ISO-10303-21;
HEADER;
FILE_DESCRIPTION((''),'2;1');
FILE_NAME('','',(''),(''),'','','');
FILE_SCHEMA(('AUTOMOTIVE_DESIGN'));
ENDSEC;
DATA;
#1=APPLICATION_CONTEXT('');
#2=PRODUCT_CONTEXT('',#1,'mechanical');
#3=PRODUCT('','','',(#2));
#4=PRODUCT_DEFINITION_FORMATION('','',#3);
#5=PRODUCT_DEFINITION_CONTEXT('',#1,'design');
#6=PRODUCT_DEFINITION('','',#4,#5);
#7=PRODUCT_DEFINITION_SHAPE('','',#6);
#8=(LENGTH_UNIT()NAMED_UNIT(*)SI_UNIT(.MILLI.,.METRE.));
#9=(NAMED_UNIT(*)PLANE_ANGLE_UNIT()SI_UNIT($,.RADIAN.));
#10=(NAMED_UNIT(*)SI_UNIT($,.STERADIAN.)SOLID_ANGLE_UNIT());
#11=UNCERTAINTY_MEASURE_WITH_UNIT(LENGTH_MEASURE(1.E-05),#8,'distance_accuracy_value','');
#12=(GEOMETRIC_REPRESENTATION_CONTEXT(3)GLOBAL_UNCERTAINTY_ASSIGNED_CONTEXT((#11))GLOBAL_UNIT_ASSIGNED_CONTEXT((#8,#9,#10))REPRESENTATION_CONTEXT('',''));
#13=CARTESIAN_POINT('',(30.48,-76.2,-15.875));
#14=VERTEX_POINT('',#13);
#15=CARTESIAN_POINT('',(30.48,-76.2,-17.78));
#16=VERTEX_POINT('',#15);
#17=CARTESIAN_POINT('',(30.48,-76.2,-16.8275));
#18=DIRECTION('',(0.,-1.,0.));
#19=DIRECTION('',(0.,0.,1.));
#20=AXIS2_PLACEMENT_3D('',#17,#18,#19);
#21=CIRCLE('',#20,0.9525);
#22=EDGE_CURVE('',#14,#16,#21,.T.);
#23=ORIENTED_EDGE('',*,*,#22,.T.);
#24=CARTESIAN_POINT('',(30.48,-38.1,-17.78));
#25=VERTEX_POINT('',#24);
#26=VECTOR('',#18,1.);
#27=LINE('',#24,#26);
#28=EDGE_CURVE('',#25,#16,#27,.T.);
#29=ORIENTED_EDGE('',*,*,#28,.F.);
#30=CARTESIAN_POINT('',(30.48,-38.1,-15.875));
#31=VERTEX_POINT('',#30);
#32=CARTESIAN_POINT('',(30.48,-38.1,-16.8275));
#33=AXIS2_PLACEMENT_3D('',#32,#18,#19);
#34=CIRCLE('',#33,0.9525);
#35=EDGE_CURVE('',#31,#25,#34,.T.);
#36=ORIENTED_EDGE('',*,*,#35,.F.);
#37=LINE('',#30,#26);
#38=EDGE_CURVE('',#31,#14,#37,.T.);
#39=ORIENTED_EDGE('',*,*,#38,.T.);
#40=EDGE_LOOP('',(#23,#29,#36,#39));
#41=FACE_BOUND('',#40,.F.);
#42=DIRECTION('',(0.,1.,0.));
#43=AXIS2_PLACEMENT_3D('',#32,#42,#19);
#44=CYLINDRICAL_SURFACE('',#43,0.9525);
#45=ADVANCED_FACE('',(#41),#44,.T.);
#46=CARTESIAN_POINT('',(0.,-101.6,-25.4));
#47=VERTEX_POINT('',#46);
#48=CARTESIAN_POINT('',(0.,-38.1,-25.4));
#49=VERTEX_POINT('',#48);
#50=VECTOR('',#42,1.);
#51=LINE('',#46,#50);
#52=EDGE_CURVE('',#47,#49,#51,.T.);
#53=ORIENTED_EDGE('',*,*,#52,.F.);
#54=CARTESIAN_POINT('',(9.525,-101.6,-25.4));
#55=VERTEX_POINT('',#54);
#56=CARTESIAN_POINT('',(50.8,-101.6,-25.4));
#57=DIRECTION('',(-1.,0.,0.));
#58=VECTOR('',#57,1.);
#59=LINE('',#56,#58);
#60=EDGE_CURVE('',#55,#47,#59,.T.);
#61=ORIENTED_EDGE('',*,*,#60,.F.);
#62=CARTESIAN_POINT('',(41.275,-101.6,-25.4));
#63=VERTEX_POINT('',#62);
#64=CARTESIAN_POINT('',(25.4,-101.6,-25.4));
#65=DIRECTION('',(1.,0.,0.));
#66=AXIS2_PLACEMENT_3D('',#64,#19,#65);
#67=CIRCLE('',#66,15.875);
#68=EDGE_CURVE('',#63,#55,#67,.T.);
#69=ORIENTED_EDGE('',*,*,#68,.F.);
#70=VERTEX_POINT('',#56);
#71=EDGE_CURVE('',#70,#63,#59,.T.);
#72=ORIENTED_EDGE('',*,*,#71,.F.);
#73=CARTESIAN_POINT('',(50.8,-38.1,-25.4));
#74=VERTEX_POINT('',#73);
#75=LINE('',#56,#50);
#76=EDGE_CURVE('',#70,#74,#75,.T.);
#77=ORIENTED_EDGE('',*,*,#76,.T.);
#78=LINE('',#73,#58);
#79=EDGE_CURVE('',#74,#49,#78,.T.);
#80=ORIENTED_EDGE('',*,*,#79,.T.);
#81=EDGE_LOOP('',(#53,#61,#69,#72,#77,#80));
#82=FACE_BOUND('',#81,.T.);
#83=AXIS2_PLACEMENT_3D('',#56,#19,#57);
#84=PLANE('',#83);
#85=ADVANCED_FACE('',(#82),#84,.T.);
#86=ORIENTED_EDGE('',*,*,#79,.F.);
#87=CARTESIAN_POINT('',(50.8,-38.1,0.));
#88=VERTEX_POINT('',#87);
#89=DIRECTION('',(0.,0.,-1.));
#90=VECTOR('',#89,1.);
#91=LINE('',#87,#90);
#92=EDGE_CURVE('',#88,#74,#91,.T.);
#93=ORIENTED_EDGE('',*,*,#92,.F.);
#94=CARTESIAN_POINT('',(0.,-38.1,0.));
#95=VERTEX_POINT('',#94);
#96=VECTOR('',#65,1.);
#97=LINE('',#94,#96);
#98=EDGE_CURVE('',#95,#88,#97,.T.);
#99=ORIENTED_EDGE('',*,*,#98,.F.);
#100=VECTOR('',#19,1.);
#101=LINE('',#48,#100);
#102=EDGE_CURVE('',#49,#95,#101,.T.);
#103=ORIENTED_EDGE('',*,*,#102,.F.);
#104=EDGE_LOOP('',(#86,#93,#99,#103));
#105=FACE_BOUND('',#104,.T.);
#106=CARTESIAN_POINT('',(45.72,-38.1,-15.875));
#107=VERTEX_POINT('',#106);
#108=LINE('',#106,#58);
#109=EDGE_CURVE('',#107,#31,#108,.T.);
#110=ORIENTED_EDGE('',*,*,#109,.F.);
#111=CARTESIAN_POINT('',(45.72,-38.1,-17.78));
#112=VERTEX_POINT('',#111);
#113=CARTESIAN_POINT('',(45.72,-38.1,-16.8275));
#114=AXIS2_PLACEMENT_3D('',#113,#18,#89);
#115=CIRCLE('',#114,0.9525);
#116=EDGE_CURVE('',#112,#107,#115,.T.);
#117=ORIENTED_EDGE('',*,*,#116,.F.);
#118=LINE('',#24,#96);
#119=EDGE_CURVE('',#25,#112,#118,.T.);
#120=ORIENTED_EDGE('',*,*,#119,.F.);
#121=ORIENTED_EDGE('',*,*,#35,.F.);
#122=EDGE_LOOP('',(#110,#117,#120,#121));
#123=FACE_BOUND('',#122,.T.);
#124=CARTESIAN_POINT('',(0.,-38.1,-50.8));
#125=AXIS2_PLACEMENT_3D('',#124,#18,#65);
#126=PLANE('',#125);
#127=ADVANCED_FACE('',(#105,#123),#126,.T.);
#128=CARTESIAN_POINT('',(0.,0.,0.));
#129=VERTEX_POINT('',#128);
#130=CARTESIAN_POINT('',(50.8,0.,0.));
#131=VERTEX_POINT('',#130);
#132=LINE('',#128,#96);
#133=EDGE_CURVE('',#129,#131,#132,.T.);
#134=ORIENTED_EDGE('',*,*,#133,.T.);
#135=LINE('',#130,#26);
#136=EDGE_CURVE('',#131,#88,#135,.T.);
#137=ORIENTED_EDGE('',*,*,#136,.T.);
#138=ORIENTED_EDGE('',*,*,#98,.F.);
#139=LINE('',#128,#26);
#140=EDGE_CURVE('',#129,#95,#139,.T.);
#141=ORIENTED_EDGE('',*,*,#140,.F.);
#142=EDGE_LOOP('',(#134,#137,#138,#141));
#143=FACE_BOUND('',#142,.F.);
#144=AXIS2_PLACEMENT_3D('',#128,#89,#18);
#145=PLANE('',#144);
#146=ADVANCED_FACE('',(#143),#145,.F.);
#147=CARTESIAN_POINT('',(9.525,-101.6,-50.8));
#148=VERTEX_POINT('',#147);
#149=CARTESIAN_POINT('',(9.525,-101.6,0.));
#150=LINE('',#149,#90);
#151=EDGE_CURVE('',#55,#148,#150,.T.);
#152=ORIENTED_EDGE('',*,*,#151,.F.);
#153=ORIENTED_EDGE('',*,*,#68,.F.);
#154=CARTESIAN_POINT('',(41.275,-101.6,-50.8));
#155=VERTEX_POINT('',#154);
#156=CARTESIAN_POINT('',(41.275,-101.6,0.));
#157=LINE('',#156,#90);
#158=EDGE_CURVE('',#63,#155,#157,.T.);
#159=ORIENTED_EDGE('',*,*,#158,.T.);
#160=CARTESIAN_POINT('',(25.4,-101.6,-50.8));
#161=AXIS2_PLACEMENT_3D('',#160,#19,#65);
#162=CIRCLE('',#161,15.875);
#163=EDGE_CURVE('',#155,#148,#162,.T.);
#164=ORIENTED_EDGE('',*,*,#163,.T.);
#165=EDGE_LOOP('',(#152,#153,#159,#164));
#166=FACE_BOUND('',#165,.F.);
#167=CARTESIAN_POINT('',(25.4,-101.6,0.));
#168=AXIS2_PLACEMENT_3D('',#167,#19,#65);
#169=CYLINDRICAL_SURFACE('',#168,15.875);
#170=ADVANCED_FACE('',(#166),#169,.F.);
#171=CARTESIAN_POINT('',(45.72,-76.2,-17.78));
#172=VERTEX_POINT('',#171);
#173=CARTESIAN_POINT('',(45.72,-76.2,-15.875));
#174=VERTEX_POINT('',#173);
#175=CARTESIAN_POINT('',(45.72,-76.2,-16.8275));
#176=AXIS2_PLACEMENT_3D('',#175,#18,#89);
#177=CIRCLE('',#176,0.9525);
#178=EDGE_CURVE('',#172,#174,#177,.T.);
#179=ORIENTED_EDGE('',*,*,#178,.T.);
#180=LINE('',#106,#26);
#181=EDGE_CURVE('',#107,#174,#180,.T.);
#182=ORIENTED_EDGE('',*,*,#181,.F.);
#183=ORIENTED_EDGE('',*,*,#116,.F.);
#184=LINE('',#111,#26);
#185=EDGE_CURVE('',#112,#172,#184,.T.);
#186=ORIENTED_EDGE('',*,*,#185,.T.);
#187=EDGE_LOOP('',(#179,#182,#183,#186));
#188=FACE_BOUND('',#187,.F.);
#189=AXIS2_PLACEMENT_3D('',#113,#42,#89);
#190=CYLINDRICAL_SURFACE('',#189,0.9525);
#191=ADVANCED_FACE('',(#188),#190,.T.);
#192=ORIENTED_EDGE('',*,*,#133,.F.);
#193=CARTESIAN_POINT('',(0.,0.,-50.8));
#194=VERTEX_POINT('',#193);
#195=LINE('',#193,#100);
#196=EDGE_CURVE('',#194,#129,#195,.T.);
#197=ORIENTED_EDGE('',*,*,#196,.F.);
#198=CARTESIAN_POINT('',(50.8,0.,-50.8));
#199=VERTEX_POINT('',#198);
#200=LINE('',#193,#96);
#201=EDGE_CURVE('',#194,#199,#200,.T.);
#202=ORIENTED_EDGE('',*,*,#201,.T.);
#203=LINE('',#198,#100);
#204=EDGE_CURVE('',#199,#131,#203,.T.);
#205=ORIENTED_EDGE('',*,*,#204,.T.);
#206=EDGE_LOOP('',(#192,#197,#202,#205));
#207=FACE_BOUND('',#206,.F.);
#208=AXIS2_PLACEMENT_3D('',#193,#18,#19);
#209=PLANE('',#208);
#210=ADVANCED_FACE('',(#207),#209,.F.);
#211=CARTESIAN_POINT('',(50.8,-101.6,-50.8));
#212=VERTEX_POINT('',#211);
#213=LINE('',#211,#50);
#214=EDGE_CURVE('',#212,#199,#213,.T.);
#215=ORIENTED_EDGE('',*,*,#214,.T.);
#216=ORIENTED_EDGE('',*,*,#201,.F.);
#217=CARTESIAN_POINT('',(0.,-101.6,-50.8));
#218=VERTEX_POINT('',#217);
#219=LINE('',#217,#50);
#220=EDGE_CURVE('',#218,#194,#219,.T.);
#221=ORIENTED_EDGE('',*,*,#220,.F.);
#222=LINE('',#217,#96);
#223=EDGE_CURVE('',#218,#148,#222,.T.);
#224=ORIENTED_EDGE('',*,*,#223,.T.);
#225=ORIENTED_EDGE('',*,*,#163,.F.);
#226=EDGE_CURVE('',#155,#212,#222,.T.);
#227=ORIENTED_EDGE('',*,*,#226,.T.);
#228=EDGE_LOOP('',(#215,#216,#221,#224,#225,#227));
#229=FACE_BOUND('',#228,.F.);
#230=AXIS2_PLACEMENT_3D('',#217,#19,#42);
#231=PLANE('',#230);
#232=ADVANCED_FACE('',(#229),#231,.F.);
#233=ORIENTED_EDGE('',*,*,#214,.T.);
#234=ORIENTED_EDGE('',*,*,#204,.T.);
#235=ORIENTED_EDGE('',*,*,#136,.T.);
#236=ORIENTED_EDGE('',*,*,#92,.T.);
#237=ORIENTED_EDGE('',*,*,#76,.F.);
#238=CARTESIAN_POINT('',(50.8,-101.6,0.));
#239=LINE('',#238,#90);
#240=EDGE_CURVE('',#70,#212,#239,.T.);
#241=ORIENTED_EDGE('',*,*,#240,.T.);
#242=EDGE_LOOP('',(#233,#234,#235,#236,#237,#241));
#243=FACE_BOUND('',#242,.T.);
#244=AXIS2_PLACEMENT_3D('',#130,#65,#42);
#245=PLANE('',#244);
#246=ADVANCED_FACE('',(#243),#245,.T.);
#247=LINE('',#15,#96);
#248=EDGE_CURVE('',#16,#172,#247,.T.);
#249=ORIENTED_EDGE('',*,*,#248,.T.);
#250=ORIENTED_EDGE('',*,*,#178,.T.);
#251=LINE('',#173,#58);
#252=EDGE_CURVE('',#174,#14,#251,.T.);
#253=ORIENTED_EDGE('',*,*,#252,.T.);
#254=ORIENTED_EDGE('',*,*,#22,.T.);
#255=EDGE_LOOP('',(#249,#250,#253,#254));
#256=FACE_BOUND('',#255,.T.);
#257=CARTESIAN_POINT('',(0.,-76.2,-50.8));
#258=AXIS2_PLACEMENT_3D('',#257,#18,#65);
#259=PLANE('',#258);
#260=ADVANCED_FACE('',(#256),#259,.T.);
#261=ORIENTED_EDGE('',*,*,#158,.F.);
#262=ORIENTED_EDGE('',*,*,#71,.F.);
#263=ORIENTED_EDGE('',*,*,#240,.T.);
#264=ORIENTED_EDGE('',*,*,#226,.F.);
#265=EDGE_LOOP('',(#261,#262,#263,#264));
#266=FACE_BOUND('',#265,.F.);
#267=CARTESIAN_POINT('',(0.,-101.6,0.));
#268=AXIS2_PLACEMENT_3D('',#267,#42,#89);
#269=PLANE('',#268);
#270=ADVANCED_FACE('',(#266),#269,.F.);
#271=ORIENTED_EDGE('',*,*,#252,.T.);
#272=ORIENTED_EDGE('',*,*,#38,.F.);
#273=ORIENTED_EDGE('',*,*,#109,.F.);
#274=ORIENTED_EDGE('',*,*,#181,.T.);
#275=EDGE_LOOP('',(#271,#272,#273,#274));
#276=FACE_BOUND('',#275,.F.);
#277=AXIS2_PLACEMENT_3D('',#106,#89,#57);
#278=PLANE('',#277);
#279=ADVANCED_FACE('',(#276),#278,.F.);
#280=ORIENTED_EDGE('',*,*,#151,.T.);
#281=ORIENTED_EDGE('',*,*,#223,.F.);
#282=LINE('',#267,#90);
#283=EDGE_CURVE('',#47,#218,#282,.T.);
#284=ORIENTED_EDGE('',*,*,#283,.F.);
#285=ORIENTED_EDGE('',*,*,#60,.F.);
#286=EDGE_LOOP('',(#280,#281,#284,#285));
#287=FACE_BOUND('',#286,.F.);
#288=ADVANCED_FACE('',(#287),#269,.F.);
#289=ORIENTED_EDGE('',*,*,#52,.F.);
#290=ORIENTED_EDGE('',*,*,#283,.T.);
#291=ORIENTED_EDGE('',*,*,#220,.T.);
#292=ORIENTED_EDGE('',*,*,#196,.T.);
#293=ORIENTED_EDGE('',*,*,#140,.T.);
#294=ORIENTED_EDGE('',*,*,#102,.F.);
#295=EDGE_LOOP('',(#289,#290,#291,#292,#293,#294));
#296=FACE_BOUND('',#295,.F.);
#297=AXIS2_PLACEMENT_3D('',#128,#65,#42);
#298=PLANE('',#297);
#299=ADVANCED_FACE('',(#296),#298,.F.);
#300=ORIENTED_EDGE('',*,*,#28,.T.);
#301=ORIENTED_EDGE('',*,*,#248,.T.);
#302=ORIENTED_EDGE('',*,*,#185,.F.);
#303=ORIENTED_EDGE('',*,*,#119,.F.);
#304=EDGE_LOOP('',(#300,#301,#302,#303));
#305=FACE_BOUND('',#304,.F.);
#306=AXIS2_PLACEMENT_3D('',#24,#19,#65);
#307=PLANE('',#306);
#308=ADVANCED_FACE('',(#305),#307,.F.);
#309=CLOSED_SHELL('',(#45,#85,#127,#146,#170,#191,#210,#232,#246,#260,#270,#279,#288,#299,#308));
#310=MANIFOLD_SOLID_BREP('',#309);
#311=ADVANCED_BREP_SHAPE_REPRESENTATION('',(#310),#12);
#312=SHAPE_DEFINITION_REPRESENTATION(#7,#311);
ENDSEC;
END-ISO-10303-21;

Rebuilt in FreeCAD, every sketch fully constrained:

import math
import FreeCAD as App
import Part
import Sketcher
Q = App.Units.Quantity

doc = App.newDocument("Part")
body = doc.addObject("PartDesign::Body", "Body")

# Sketch on YZ plane
sketch1 = body.newObject("Sketcher::SketchObject", "Sketch")
sketch1.AttachmentSupport = (doc.getObject("YZ_Plane"), [""])
sketch1.MapMode = "FlatFace"
sketch1.addGeometry([
    Part.LineSegment(App.Vector(0, -51, 0), App.Vector(0, 0, 0)),
    Part.LineSegment(App.Vector(0, 0, 0), App.Vector(-102, 0, 0)),
    Part.LineSegment(App.Vector(-102, 0, 0), App.Vector(-102, -51, 0)),
    Part.LineSegment(App.Vector(-102, -51, 0), App.Vector(0, -51, 0)),
], False)
sketch1.addConstraint([
    Sketcher.Constraint("Coincident", 0, 2, 1, 1),
    Sketcher.Constraint("Coincident", 1, 2, 2, 1),
    Sketcher.Constraint("Coincident", 2, 2, 3, 1),
    Sketcher.Constraint("Coincident", 3, 2, 0, 1),
    Sketcher.Constraint("Vertical", 0),
    Sketcher.Constraint("Horizontal", 1),
    Sketcher.Constraint("Vertical", 2),
    Sketcher.Constraint("Horizontal", 3),
    Sketcher.Constraint("Coincident", 0, 2, -1, 1),
    Sketcher.Constraint("DistanceX", 1, 2, 1, 1, Q("4 in")),
    Sketcher.Constraint("DistanceY", 0, 1, 0, 2, Q("2 in")),
])
pad1 = body.newObject("PartDesign::Pad", "Pad")
pad1.Profile = sketch1
pad1.Length = Q("2 in")

# Sketch on XY plane
sketch2 = body.newObject("Sketcher::SketchObject", "Sketch001")
sketch2.AttachmentSupport = (doc.getObject("XY_Plane"), [""])
sketch2.MapMode = "FlatFace"
sketch2.addGeometry([
    Part.ArcOfCircle(Part.Circle(App.Vector(25, -102, 0), App.Vector(0, 0, 1), 16), math.radians(0), math.radians(180)),
    Part.LineSegment(App.Vector(10, -102, 0), App.Vector(41, -102, 0)),
], False)
sketch2.addConstraint([
    Sketcher.Constraint("Coincident", 0, 1, 1, 2),
    Sketcher.Constraint("Coincident", 1, 1, 0, 2),
    Sketcher.Constraint("Horizontal", 1),
    Sketcher.Constraint("Radius", 0, Q("0.625 in")),
    Sketcher.Constraint("DistanceX", -1, 1, 0, 3, Q("1 in")),
    Sketcher.Constraint("DistanceY", 0, 3, -1, 1, Q("4 in")),
    Sketcher.Constraint("DistanceY", 0, 1, -1, 1, Q("4 in")),
])
pocket1 = body.newObject("PartDesign::Pocket", "Pocket")
pocket1.Profile = sketch2
pocket1.Type = "ThroughAll"

# Sketch on XZ plane
sketch3 = body.newObject("Sketcher::SketchObject", "Sketch002")
sketch3.AttachmentSupport = (doc.getObject("XZ_Plane"), [""])
sketch3.MapMode = "FlatFace"
sketch3.AttachmentOffset = App.Placement(App.Vector(0, 0, 4 * 25.4), App.Rotation())
sketch3.addGeometry([
    Part.LineSegment(App.Vector(51, 0, 0), App.Vector(0, 0, 0)),
    Part.LineSegment(App.Vector(0, 0, 0), App.Vector(0, -25, 0)),
    Part.LineSegment(App.Vector(0, -25, 0), App.Vector(51, -25, 0)),
    Part.LineSegment(App.Vector(51, -25, 0), App.Vector(51, 0, 0)),
], False)
sketch3.addConstraint([
    Sketcher.Constraint("Coincident", 0, 2, 1, 1),
    Sketcher.Constraint("Coincident", 1, 2, 2, 1),
    Sketcher.Constraint("Coincident", 2, 2, 3, 1),
    Sketcher.Constraint("Coincident", 3, 2, 0, 1),
    Sketcher.Constraint("Horizontal", 0),
    Sketcher.Constraint("Vertical", 1),
    Sketcher.Constraint("Horizontal", 2),
    Sketcher.Constraint("Vertical", 3),
    Sketcher.Constraint("Coincident", 0, 2, -1, 1),
    Sketcher.Constraint("DistanceX", 0, 2, 0, 1, Q("2 in")),
    Sketcher.Constraint("DistanceY", 1, 2, 1, 1, Q("1 in")),
])
pocket2 = body.newObject("PartDesign::Pocket", "Pocket001")
pocket2.Profile = sketch3
pocket2.Length = Q("2.5 in")

# Sketch on XZ plane
sketch4 = body.newObject("Sketcher::SketchObject", "Sketch003")
sketch4.AttachmentSupport = (doc.getObject("XZ_Plane"), [""])
sketch4.MapMode = "FlatFace"
sketch4.AttachmentOffset = App.Placement(App.Vector(0, 0, 1.5 * 25.4), App.Rotation())
sketch4.addGeometry([
    Part.ArcOfCircle(Part.Circle(App.Vector(45.7, -16.8, 0), App.Vector(0, 0, 1), 1), math.radians(-90), math.radians(90)),
    Part.LineSegment(App.Vector(45.7, -15.9, 0), App.Vector(30.5, -15.9, 0)),
    Part.ArcOfCircle(Part.Circle(App.Vector(30.5, -16.8, 0), App.Vector(0, 0, 1), 1), math.radians(90), math.radians(270)),
    Part.LineSegment(App.Vector(30.5, -17.8, 0), App.Vector(45.7, -17.8, 0)),
], False)
sketch4.addConstraint([
    Sketcher.Constraint("Tangent", 0, 2, 1, 1),
    Sketcher.Constraint("Tangent", 1, 2, 2, 1),
    Sketcher.Constraint("Tangent", 2, 2, 3, 1),
    Sketcher.Constraint("Tangent", 3, 2, 0, 1),
    Sketcher.Constraint("Horizontal", 1),
    Sketcher.Constraint("Horizontal", 3),
    Sketcher.Constraint("Radius", 0, Q("0.0375 in")),
    Sketcher.Constraint("DistanceX", 1, 2, 1, 1, Q("0.6 in")),
    Sketcher.Constraint("DistanceX", -1, 1, 0, 3, Q("1.8 in")),
    Sketcher.Constraint("DistanceY", 2, 2, -1, 1, Q("0.7 in")),
])
pad2 = body.newObject("PartDesign::Pad", "Pad001")
pad2.Profile = sketch4
pad2.Length = Q("1.5 in")

doc.recompute()
